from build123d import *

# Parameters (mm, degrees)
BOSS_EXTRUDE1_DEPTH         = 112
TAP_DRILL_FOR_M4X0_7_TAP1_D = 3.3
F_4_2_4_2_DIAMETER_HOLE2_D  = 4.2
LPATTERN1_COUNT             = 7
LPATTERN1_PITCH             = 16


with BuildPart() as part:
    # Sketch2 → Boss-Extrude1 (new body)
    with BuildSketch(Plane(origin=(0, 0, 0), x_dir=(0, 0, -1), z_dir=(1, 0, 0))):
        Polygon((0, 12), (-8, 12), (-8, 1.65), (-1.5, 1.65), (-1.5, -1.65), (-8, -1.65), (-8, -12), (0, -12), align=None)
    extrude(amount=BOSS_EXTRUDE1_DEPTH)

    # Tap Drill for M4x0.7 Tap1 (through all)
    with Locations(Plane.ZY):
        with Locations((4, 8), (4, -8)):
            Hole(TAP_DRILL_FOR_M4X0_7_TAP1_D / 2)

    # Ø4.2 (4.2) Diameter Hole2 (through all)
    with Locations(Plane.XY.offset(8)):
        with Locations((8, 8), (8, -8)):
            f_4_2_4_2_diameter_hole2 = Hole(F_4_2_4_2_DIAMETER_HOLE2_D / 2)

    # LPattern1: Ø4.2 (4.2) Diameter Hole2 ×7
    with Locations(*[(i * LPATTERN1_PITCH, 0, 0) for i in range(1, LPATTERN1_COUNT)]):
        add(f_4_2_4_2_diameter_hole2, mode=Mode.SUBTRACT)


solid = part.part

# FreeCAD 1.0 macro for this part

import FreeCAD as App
import Part
import Sketcher


def add_polygon(sketch, points):
    """Adds a closed chain of lines whose ends are joined by coincident constraints."""
    first, n = sketch.GeometryCount, len(points)
    for a, b in zip(points, points[1:] + points[:1]):
        sketch.addGeometry(Part.LineSegment(App.Vector(*a, 0), App.Vector(*b, 0)), False)
    for i in range(n):
        sketch.addConstraint(Sketcher.Constraint("Coincident", first + i, 2, first + (i + 1) % n, 1))

doc = App.newDocument("Part")
params = doc.addObject("Spreadsheet::Sheet", "Params")
for row, (alias, value) in enumerate([
    ("sketch1_width", "24 mm"),
    ("sketch1_height", "8 mm"),
    ("sketch1_width2", "3.3 mm"),
    ("sketch1_height2", "6.5 mm"),
    ("pad1_length", "112 mm"),
    ("sketch2_diameter", "3.3 mm"),
    ("hole_diameter", "3.3 mm"),
    ("sketch3_diameter", "4.2 mm"),
    ("hole2_diameter", "4.2 mm"),
    ("linearpattern_pitch", "16 mm"),
], start=1):
    params.set(f"A{row}", alias)
    params.set(f"B{row}", "=" + value)
    params.setAlias(f"B{row}", alias)

body = doc.addObject("PartDesign::Body", "Body")

# Sketch on YZ plane
sketch1 = doc.addObject("Sketcher::SketchObject", "Sketch")
body.addObject(sketch1)
sketch1.AttachmentSupport = (doc.YZ_Plane, [""])
sketch1.MapMode = "FlatFace"
add_polygon(sketch1, [(12, 0), (12, 8), (1.65, 8), (1.65, 1.5), (-1.65, 1.5), (-1.65, 8), (-12, 8), (-12, 0)])  # lines 0-7
sketch1.addConstraint(Sketcher.Constraint("Vertical", 0))
sketch1.addConstraint(Sketcher.Constraint("Horizontal", 1))
sketch1.addConstraint(Sketcher.Constraint("Vertical", 2))
sketch1.addConstraint(Sketcher.Constraint("Horizontal", 3))
sketch1.addConstraint(Sketcher.Constraint("Vertical", 4))
sketch1.addConstraint(Sketcher.Constraint("Horizontal", 5))
sketch1.addConstraint(Sketcher.Constraint("Vertical", 6))
sketch1.addConstraint(Sketcher.Constraint("Horizontal", 7))
sketch1.addConstraint(Sketcher.Constraint("Symmetric", 6, 2, 7, 2, -1, 1))
sketch1.addConstraint(Sketcher.Constraint("Symmetric", 1, 2, 4, 2, -2))
sketch1.addConstraint(Sketcher.Constraint("DistanceX", 7, 1, 7, 2, 24.0))
sketch1.addConstraint(Sketcher.Constraint("DistanceY", 0, 1, 0, 2, 8.0))
sketch1.addConstraint(Sketcher.Constraint("DistanceX", 3, 2, 3, 1, 3.3))
sketch1.addConstraint(Sketcher.Constraint("DistanceY", 2, 2, 2, 1, 6.5))
sketch1.setExpression("Constraints[18]", "Params.sketch1_width")
sketch1.setExpression("Constraints[19]", "Params.sketch1_height")
sketch1.setExpression("Constraints[20]", "Params.sketch1_width2")
sketch1.setExpression("Constraints[21]", "Params.sketch1_height2")
pad1 = doc.addObject("PartDesign::Pad", "Pad")
body.addObject(pad1)
pad1.Profile = sketch1
pad1.setExpression("Length", "Params.pad1_length")

# Sketch on YZ plane
sketch2 = doc.addObject("Sketcher::SketchObject", "Sketch001")
body.addObject(sketch2)
sketch2.AttachmentSupport = (doc.YZ_Plane, [""])
sketch2.MapMode = "FlatFace"
sketch2.addGeometry(Part.Circle(App.Vector(8, 4, 0), App.Vector(0, 0, 1), 1.65), False)
sketch2.addGeometry(Part.Circle(App.Vector(-8, 4, 0), App.Vector(0, 0, 1), 1.65), False)
sketch2.addConstraint(Sketcher.Constraint("Equal", 0, 1))
sketch2.addConstraint(Sketcher.Constraint("Symmetric", 0, 3, 1, 3, -2))
sketch2.addConstraint(Sketcher.Constraint("Diameter", 0, 3.3))
sketch2.addConstraint(Sketcher.Constraint("DistanceX", -1, 1, 0, 3, 8.0))
sketch2.addConstraint(Sketcher.Constraint("DistanceY", -1, 1, 0, 3, 4.0))
sketch2.setExpression("Constraints[2]", "Params.sketch2_diameter")
doc.recompute()
hole = doc.addObject("PartDesign::Hole", "Hole")
body.addObject(hole)
hole.Profile = sketch2
hole.ThreadType = "None"
hole.setExpression("Diameter", "Params.hole_diameter")
hole.DepthType = "ThroughAll"
hole.Reversed = True

# Sketch on XY plane
sketch3 = doc.addObject("Sketcher::SketchObject", "Sketch002")
body.addObject(sketch3)
sketch3.AttachmentSupport = (doc.XY_Plane, [""])
sketch3.MapMode = "FlatFace"
sketch3.AttachmentOffset = App.Placement(App.Vector(0, 0, 8), App.Rotation())
sketch3.addGeometry(Part.Circle(App.Vector(8, 8, 0), App.Vector(0, 0, 1), 2.1), False)
sketch3.addGeometry(Part.Circle(App.Vector(8, -8, 0), App.Vector(0, 0, 1), 2.1), False)
sketch3.addConstraint(Sketcher.Constraint("Equal", 0, 1))
sketch3.addConstraint(Sketcher.Constraint("Symmetric", 0, 3, 1, 3, -1))
sketch3.addConstraint(Sketcher.Constraint("Diameter", 0, 4.2))
sketch3.addConstraint(Sketcher.Constraint("DistanceX", -1, 1, 0, 3, 8.0))
sketch3.addConstraint(Sketcher.Constraint("DistanceY", -1, 1, 0, 3, 8.0))
sketch3.setExpression("Constraints[2]", "Params.sketch3_diameter")
doc.recompute()
hole2 = doc.addObject("PartDesign::Hole", "Hole001")
body.addObject(hole2)
hole2.Profile = sketch3
hole2.ThreadType = "None"
hole2.setExpression("Diameter", "Params.hole2_diameter")
hole2.DepthType = "ThroughAll"
doc.recompute()

linearpattern = doc.addObject("PartDesign::LinearPattern", "LinearPattern")
body.addObject(linearpattern)
linearpattern.Originals = [hole2]
linearpattern.Direction = (doc.X_Axis, [""])
linearpattern.Mode = "offset"
linearpattern.setExpression("Offset", "Params.linearpattern_pitch")
linearpattern.Occurrences = 7
body.Tip = linearpattern

doc.recompute()
